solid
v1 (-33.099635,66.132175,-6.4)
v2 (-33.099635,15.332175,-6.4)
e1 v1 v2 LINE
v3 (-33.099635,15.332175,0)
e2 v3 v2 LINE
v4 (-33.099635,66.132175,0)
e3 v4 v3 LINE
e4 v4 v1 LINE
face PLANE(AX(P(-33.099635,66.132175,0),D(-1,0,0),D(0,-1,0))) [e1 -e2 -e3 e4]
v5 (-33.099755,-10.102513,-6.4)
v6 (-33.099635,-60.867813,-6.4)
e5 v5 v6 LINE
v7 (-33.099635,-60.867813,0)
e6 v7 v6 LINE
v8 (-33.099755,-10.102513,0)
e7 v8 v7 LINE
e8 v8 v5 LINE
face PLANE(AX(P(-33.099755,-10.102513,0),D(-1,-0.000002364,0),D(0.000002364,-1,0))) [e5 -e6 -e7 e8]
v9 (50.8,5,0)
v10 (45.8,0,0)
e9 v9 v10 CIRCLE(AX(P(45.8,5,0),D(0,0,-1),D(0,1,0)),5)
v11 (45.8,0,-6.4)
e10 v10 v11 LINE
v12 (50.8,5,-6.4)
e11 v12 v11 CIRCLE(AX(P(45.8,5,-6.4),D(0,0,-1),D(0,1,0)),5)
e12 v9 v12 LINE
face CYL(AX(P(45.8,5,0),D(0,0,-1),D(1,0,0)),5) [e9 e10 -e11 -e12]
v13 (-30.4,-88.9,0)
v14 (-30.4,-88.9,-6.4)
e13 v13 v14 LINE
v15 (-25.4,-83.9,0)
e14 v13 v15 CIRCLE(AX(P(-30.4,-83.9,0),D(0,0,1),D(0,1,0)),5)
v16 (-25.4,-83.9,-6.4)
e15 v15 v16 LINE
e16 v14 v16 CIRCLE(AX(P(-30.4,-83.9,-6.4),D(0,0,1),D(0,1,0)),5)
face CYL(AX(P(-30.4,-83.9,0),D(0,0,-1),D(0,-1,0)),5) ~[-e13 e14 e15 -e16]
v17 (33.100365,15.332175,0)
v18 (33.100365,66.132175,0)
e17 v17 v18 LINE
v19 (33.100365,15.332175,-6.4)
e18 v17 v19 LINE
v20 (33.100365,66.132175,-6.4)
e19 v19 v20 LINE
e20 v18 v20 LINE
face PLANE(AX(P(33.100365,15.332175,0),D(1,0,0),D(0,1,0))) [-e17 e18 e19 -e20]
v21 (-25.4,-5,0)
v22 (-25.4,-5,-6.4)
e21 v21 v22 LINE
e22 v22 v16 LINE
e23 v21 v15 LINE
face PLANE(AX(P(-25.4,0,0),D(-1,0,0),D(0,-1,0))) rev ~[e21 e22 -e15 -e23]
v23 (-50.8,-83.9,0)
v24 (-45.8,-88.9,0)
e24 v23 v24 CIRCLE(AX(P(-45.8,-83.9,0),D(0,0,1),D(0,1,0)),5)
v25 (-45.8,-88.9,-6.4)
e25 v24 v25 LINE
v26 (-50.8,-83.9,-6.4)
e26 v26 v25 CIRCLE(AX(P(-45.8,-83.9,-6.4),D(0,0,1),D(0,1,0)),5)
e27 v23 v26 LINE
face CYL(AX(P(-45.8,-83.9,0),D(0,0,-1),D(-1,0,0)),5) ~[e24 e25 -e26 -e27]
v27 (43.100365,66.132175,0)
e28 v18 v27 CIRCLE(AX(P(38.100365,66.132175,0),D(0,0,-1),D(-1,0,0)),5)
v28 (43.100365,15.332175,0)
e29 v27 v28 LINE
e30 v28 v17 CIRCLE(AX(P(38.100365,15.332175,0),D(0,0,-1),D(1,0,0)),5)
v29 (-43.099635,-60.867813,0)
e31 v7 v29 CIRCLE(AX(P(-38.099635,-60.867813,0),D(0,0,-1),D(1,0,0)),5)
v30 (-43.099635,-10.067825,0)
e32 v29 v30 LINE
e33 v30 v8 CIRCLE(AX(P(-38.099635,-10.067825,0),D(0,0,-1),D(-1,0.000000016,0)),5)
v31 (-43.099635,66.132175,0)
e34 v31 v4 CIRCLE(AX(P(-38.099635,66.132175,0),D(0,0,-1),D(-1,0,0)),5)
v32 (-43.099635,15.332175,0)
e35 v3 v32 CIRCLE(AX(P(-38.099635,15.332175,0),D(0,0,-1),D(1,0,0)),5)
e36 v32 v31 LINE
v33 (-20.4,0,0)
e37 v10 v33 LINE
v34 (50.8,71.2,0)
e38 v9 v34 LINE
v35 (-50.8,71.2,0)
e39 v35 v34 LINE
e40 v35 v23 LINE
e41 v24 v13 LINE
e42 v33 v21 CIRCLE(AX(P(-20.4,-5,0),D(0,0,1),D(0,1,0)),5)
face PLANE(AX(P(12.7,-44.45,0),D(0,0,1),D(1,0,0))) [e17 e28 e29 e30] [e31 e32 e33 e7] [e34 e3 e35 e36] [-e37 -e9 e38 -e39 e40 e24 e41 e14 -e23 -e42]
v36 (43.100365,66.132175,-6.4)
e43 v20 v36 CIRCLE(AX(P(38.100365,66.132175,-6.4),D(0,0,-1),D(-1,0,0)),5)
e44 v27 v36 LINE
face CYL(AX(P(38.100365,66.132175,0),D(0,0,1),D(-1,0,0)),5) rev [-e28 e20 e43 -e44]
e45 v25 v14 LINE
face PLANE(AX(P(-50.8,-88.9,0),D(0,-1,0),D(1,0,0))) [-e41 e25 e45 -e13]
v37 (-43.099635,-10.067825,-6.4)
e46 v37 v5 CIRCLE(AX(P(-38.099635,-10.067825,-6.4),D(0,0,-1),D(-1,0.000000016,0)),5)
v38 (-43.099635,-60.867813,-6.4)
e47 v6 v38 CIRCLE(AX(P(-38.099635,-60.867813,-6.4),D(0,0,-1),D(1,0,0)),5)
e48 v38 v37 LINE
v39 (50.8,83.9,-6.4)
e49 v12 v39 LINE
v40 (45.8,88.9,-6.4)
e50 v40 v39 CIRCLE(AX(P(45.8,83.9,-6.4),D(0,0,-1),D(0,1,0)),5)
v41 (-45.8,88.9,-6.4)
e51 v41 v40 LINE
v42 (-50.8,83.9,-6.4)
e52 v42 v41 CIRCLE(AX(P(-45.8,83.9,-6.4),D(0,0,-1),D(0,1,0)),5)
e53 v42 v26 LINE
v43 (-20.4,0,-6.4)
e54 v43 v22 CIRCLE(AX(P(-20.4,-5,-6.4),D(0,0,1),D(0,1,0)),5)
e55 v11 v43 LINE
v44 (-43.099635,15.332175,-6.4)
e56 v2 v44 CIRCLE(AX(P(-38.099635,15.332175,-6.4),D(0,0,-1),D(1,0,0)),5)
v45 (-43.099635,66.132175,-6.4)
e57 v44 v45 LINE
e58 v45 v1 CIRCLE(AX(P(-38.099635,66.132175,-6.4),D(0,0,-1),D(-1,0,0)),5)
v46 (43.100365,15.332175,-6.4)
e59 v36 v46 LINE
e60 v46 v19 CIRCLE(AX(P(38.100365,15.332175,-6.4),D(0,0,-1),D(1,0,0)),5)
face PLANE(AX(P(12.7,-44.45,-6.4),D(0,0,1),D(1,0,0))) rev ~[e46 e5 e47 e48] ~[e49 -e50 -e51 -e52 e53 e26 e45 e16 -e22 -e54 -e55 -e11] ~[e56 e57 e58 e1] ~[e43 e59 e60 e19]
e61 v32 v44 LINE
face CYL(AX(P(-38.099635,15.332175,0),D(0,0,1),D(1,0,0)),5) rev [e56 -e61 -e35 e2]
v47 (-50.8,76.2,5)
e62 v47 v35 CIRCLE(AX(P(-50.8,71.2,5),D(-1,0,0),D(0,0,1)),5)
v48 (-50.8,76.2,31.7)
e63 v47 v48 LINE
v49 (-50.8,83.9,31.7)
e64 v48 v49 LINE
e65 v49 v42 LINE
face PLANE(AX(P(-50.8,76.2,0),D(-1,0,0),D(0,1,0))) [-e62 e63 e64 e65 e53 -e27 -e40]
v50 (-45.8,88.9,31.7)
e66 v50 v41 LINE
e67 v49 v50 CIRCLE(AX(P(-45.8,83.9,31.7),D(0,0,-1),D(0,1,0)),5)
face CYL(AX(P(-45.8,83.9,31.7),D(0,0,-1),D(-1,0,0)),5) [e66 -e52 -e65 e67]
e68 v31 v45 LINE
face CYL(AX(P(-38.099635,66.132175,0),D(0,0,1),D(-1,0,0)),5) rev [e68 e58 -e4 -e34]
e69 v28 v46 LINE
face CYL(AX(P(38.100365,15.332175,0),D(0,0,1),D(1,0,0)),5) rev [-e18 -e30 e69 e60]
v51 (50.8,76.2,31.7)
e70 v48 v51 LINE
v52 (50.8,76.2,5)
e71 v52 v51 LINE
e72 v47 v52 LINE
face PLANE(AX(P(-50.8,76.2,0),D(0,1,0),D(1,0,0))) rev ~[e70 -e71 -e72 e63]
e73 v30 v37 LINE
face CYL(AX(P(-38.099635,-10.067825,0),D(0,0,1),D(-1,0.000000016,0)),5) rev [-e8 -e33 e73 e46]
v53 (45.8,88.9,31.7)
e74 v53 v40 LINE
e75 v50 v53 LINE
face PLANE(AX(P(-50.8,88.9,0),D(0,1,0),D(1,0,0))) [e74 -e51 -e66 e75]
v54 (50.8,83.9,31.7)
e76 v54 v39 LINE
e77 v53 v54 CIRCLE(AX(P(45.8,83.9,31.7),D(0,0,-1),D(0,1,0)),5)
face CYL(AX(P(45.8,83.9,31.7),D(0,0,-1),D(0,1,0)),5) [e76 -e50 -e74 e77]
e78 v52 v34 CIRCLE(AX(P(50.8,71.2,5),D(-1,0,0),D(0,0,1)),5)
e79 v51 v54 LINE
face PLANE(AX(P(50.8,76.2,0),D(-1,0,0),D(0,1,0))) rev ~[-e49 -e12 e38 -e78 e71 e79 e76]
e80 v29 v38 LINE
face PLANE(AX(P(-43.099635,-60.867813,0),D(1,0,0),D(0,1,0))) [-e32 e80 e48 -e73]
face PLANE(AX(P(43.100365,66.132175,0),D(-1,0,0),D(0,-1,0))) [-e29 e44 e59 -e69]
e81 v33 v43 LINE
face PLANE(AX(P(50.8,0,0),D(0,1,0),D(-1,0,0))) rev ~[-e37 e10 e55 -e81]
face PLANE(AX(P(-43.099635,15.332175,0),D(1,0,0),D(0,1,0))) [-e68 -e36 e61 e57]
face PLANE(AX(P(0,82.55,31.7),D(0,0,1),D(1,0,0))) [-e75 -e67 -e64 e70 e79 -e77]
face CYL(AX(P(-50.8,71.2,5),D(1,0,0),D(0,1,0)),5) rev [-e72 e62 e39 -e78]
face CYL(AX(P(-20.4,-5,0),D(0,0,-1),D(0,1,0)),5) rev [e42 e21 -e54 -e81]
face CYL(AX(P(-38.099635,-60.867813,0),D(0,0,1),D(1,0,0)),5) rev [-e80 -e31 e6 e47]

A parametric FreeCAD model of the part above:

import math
import FreeCAD as App
import Part
import Sketcher
Q = App.Units.Quantity


def edges_at(feature, points):
    """Names of the edges that pass closest to the given points."""
    edges = feature.Shape.Edges
    near = lambda p: min(range(len(edges)), key=lambda i: edges[i].distToShape(Part.Vertex(*p))[0])
    return sorted({f"Edge{near(p) + 1}" for p in points})


def add_polygon(sketch, points):
    """Adds a closed chain of lines whose ends are joined by coincident constraints."""
    first, n = sketch.GeometryCount, len(points)
    for a, b in zip(points, points[1:] + points[:1]):
        sketch.addGeometry(Part.LineSegment(App.Vector(*a, 0), App.Vector(*b, 0)), False)
    for i in range(n):
        sketch.addConstraint(Sketcher.Constraint("Coincident", first + i, 2, first + (i + 1) % n, 1))

doc = App.newDocument("Part")
params = doc.addObject("Spreadsheet::Sheet", "Params")
for row, (alias, value) in enumerate([
    ("sketch1_width", "4 in"),
    ("sketch1_height", "7 in"),
    ("sketch1_height2", "2 in"),
    ("pad1_length", "6.4 mm"),
    ("sketch2_width", "4 in"),
    ("sketch2_height", "0.5 in"),
    ("pad2_length", "31.7 mm"),
    ("sketch3_width", "3 in"),
    ("sketch3_height", "2 in"),
    ("sketch3_height2", "3.5 in"),
    ("pocket1_length", "6.4 mm"),
    ("fillet_radius", "5 mm"),
], start=1):
    params.set(f"A{row}", alias)
    params.set(f"B{row}", "=" + value)
    params.setAlias(f"B{row}", alias)

body = doc.addObject("PartDesign::Body", "Body")

# Sketch on XY plane
sketch1 = body.newObject("Sketcher::SketchObject", "Sketch")
sketch1.AttachmentSupport = (doc.getObject("XY_Plane"), [""])
sketch1.MapMode = "FlatFace"
add_polygon(sketch1, [(51, -89), (51, 89), (-51, 89), (-51, -89)])  # lines 0-3
sketch1.addGeometry(Part.ArcOfCircle(Part.Circle(App.Vector(-38, -61, 0), App.Vector(0, 0, 1), 5), math.radians(180), math.radians(360)), False)  # 4
sketch1.addGeometry(Part.LineSegment(App.Vector(-43, -61, 0), App.Vector(-43, -10, 0)), False)  # 5
sketch1.addGeometry(Part.ArcOfCircle(Part.Circle(App.Vector(-38, -10, 0), App.Vector(0, 0, 1), 5), math.radians(0), math.radians(180)), False)  # 6
sketch1.addGeometry(Part.LineSegment(App.Vector(-33, -10, 0), App.Vector(-33, -61, 0)), False)  # 7
sketch1.addGeometry(Part.LineSegment(App.Vector(33, -62, 0), App.Vector(33, -11, 0)), False)  # 8
sketch1.addGeometry(Part.ArcOfCircle(Part.Circle(App.Vector(38, -11, 0), App.Vector(0, 0, 1), 5), math.radians(0), math.radians(180)), False)  # 9
sketch1.addGeometry(Part.LineSegment(App.Vector(43, -11, 0), App.Vector(43, -62, 0)), False)  # 10
sketch1.addGeometry(Part.ArcOfCircle(Part.Circle(App.Vector(38, -62, 0), App.Vector(0, 0, 1), 5), math.radians(180), math.radians(360)), False)  # 11
sketch1.addGeometry(Part.ArcOfCircle(Part.Circle(App.Vector(-38, 66, 0), App.Vector(0, 0, 1), 5), math.radians(0), math.radians(180)), False)  # 12
sketch1.addGeometry(Part.LineSegment(App.Vector(-33, 66, 0), App.Vector(-33, 15, 0)), False)  # 13
sketch1.addGeometry(Part.ArcOfCircle(Part.Circle(App.Vector(-38, 15, 0), App.Vector(0, 0, 1), 5), math.radians(180), math.radians(360)), False)  # 14
sketch1.addGeometry(Part.LineSegment(App.Vector(-43, 15, 0), App.Vector(-43, 66, 0)), False)  # 15
sketch1.addGeometry(Part.ArcOfCircle(Part.Circle(App.Vector(38, 66, 0), App.Vector(0, 0, 1), 5), math.radians(0), math.radians(180)), False)  # 16
sketch1.addGeometry(Part.LineSegment(App.Vector(43, 66, 0), App.Vector(43, 15, 0)), False)  # 17
sketch1.addGeometry(Part.ArcOfCircle(Part.Circle(App.Vector(38, 15, 0), App.Vector(0, 0, 1), 5), math.radians(180), math.radians(360)), False)  # 18
sketch1.addGeometry(Part.LineSegment(App.Vector(33, 15, 0), App.Vector(33, 66, 0)), False)  # 19
sketch1.addConstraint([
    Sketcher.Constraint("Tangent", 4, 1, 5, 1),
    Sketcher.Constraint("Tangent", 5, 2, 6, 2),
    Sketcher.Constraint("Coincident", 6, 1, 7, 1),
    Sketcher.Constraint("Coincident", 7, 2, 4, 2),
    Sketcher.Constraint("Tangent", 8, 2, 9, 2),
    Sketcher.Constraint("Tangent", 9, 1, 10, 1),
    Sketcher.Constraint("Tangent", 10, 2, 11, 2),
    Sketcher.Constraint("Tangent", 11, 1, 8, 1),
    Sketcher.Constraint("Tangent", 12, 1, 13, 1),
    Sketcher.Constraint("Tangent", 13, 2, 14, 2),
    Sketcher.Constraint("Tangent", 14, 1, 15, 1),
    Sketcher.Constraint("Tangent", 15, 2, 12, 2),
    Sketcher.Constraint("Tangent", 16, 1, 17, 1),
    Sketcher.Constraint("Tangent", 17, 2, 18, 2),
    Sketcher.Constraint("Tangent", 18, 1, 19, 1),
    Sketcher.Constraint("Tangent", 19, 2, 16, 2),
    Sketcher.Constraint("Vertical", 0),
    Sketcher.Constraint("Horizontal", 1),
    Sketcher.Constraint("Vertical", 2),
    Sketcher.Constraint("Horizontal", 3),
    Sketcher.Constraint("Vertical", 5),
    Sketcher.Constraint("Vertical", 8),
    Sketcher.Constraint("Vertical", 10),
    Sketcher.Constraint("Vertical", 13),
    Sketcher.Constraint("Vertical", 15),
    Sketcher.Constraint("Vertical", 17),
    Sketcher.Constraint("Vertical", 19),
    Sketcher.Constraint("Equal", 4, 6),
    Sketcher.Constraint("Equal", 6, 9),
    Sketcher.Constraint("Equal", 11, 12),
    Sketcher.Constraint("Equal", 14, 16),
    Sketcher.Constraint("Symmetric", 0, 2, 2, 2, -1, 1),
    Sketcher.Constraint("Horizontal", 12, 3, 16, 3),
    Sketcher.Constraint("Horizontal", 14, 3, 18, 3),
    Sketcher.Constraint("Horizontal", 4, 1, 7, 2),
    Sketcher.Constraint("Vertical", 6, 3, 12, 3),
    Sketcher.Constraint("Equal", 10, 13),
    Sketcher.Constraint("DistanceX", 1, 2, 1, 1, Q("4 in")),
    Sketcher.Constraint("DistanceY", 0, 1, 0, 2, Q("7 in")),
    Sketcher.Constraint("DistanceY", 8, 1, 8, 2, Q("2 in")),
    Sketcher.Constraint("DistanceY", 6, 3, 12, 3, Q("3 in")),
    Sketcher.Constraint("DistanceX", 12, 3, 16, 3, Q("3 in")),
    Sketcher.Constraint("Radius", 4, Q("5 mm")),
    Sketcher.Constraint("Distance", 7, Q("50.7653 mm")),
    Sketcher.Constraint("DistanceY", 5, 1, 5, 2, Q("50.799988 mm")),
    Sketcher.Constraint("DistanceX", 6, 3, 9, 3, Q("76.432482 mm")),
    Sketcher.Constraint("DistanceY", 9, 3, 6, 3, Q("0.681939 mm")),
    Sketcher.Constraint("DistanceX", 4, 3, -1, 1, Q("38.099635 mm")),
    Sketcher.Constraint("DistanceY", 4, 3, -1, 1, Q("60.867813 mm")),
])
sketch1.setExpression("Constraints[41]", "Params.sketch1_width")
sketch1.setExpression("Constraints[42]", "Params.sketch1_height")
sketch1.setExpression("Constraints[43]", "Params.sketch1_height2")
pad1 = body.newObject("PartDesign::Pad", "Pad")
pad1.Profile = sketch1
pad1.setExpression("Length", "Params.pad1_length")
pad1.Reversed = True

# Sketch on XY plane
sketch2 = body.newObject("Sketcher::SketchObject", "Sketch001")
sketch2.AttachmentSupport = (doc.getObject("XY_Plane"), [""])
sketch2.MapMode = "FlatFace"
add_polygon(sketch2, [(-51, 89), (-51, 76), (51, 76), (51, 89)])  # lines 0-3
sketch2.addConstraint([
    Sketcher.Constraint("Vertical", 0),
    Sketcher.Constraint("Horizontal", 1),
    Sketcher.Constraint("Vertical", 2),
    Sketcher.Constraint("Horizontal", 3),
    Sketcher.Constraint("DistanceX", 1, 1, 1, 2, Q("4 in")),
    Sketcher.Constraint("DistanceY", 0, 2, 0, 1, Q("0.5 in")),
    Sketcher.Constraint("DistanceX", 0, 2, -1, 1, Q("2 in")),
    Sketcher.Constraint("DistanceY", -1, 1, 0, 2, Q("3 in")),
])
sketch2.setExpression("Constraints[8]", "Params.sketch2_width")
sketch2.setExpression("Constraints[9]", "Params.sketch2_height")
pad2 = body.newObject("PartDesign::Pad", "Pad001")
pad2.Profile = sketch2
pad2.setExpression("Length", "Params.pad2_length")

# Sketch on XY plane
sketch3 = body.newObject("Sketcher::SketchObject", "Sketch002")
sketch3.AttachmentSupport = (doc.getObject("XY_Plane"), [""])
sketch3.MapMode = "FlatFace"
add_polygon(sketch3, [(-25, -89), (51, -89), (51, 0), (-25, 0)])  # lines 0-3
sketch3.addGeometry(Part.LineSegment(App.Vector(33, -62, 0), App.Vector(33, -11, 0)), False)  # 4
sketch3.addGeometry(Part.ArcOfCircle(Part.Circle(App.Vector(38, -11, 0), App.Vector(0, 0, 1), 5), math.radians(0), math.radians(180)), False)  # 5
sketch3.addGeometry(Part.LineSegment(App.Vector(43, -11, 0), App.Vector(43, -62, 0)), False)  # 6
sketch3.addGeometry(Part.ArcOfCircle(Part.Circle(App.Vector(38, -62, 0), App.Vector(0, 0, 1), 5), math.radians(180), math.radians(360)), False)  # 7
sketch3.addConstraint([
    Sketcher.Constraint("Tangent", 4, 2, 5, 2),
    Sketcher.Constraint("Tangent", 5, 1, 6, 1),
    Sketcher.Constraint("Tangent", 6, 2, 7, 2),
    Sketcher.Constraint("Tangent", 7, 1, 4, 1),
    Sketcher.Constraint("Horizontal", 0),
    Sketcher.Constraint("Vertical", 1),
    Sketcher.Constraint("Horizontal", 2),
    Sketcher.Constraint("Vertical", 3),
    Sketcher.Constraint("Vertical", 4),
    Sketcher.Constraint("Vertical", 6),
    Sketcher.Constraint("PointOnObject", 1, 2, -1),
    Sketcher.Constraint("DistanceX", 0, 1, 0, 2, Q("3 in")),
    Sketcher.Constraint("DistanceY", 4, 1, 4, 2, Q("2 in")),
    Sketcher.Constraint("DistanceY", 1, 1, 1, 2, Q("3.5 in")),
    Sketcher.Constraint("DistanceX", -1, 1, 0, 2, Q("2 in")),
    Sketcher.Constraint("Radius", 5, Q("5 mm")),
    Sketcher.Constraint("DistanceX", -1, 1, 5, 3, Q("38.332847 mm")),
    Sketcher.Constraint("DistanceY", 5, 3, -1, 1, Q("10.749764 mm")),
])
sketch3.setExpression("Constraints[15]", "Params.sketch3_width")
sketch3.setExpression("Constraints[16]", "Params.sketch3_height")
sketch3.setExpression("Constraints[17]", "Params.sketch3_height2")
pocket1 = body.newObject("PartDesign::Pocket", "Pocket")
pocket1.Profile = sketch3
pocket1.setExpression("Length", "Params.pocket1_length")
doc.recompute()

fillet = body.newObject("PartDesign::Fillet", "Fillet")
fillet.Base = (pocket1, edges_at(pocket1, [
    (0, 76.2, 0),
    (50.8, 88.9, 12.65),
    (-50.8, 88.9, 12.65),
    (50.8, 0, -3.2),
    (-25.4, 0, -3.2),
    (-25.4, -88.9, -3.2),
    (-50.8, -88.9, -3.2),
]))
fillet.setExpression("Radius", "Params.fillet_radius")

doc.recompute()
